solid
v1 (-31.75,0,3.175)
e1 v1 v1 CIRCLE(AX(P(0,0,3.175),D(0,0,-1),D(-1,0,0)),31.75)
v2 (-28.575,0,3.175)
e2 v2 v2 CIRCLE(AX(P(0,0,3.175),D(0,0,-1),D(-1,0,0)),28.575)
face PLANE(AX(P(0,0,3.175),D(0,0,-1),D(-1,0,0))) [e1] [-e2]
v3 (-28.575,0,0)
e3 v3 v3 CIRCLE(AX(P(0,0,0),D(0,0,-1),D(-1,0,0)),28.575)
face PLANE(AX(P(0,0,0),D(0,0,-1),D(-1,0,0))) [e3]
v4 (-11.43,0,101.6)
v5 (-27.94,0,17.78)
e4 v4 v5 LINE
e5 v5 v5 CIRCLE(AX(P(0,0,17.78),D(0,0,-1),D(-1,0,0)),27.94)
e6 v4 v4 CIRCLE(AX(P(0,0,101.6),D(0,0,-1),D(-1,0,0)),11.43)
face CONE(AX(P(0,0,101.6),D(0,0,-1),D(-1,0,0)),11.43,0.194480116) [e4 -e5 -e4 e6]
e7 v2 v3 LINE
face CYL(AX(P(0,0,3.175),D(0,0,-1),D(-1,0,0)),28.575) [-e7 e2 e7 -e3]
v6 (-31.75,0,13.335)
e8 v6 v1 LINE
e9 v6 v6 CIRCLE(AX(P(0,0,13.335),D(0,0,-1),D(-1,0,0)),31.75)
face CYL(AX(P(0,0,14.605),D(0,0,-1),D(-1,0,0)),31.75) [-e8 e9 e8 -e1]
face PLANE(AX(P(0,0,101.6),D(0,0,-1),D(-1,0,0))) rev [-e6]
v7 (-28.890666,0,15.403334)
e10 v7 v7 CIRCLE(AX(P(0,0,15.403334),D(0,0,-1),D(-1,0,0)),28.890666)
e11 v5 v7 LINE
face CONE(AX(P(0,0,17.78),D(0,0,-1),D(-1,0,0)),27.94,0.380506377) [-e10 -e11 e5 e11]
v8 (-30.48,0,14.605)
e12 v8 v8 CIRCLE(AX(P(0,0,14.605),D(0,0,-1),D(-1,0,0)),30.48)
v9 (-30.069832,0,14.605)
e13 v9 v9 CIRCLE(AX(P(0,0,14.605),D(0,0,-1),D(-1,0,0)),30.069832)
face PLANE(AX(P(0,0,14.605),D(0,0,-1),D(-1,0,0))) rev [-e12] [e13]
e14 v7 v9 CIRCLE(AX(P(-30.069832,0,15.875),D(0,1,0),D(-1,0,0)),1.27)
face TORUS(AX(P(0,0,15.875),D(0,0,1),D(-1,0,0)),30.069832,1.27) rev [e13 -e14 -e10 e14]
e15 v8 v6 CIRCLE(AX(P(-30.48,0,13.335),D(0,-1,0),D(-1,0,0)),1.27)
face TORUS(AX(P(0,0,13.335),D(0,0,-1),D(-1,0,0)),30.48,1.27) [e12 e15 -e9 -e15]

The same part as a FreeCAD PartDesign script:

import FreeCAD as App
import Part
import Sketcher
Q = App.Units.Quantity


def edges_at(feature, points):
    """Names of the edges that pass closest to the given points."""
    edges = feature.Shape.Edges
    near = lambda p: min(range(len(edges)), key=lambda i: edges[i].distToShape(Part.Vertex(*p))[0])
    return sorted({f"Edge{near(p) + 1}" for p in points})

doc = App.newDocument("Part")
body = doc.addObject("PartDesign::Body", "Body")

sketch1 = body.newObject("Sketcher::SketchObject", "Sketch")
sketch1.AttachmentSupport = (doc.getObject("XZ_Plane"), [""])
sketch1.MapMode = "FlatFace"
sketch1.addGeometry(Part.LineSegment(App.Vector(-28.6, 0, 0), App.Vector(0, 0, 0)), False)
sketch1.addGeometry(Part.LineSegment(App.Vector(0, 0, 0), App.Vector(0, 101.6, 0)), False)
sketch1.addGeometry(Part.LineSegment(App.Vector(0, 101.6, 0), App.Vector(-11.4, 101.6, 0)), False)
sketch1.addGeometry(Part.LineSegment(App.Vector(-11.4, 101.6, 0), App.Vector(-27.9, 17.8, 0)), False)
sketch1.addGeometry(Part.LineSegment(App.Vector(-27.9, 17.8, 0), App.Vector(-29.2, 14.6, 0)), False)
sketch1.addGeometry(Part.LineSegment(App.Vector(-29.2, 14.6, 0), App.Vector(-31.8, 14.6, 0)), False)
sketch1.addGeometry(Part.LineSegment(App.Vector(-31.8, 14.6, 0), App.Vector(-31.8, 3.2, 0)), False)
sketch1.addGeometry(Part.LineSegment(App.Vector(-31.8, 3.2, 0), App.Vector(-28.6, 3.2, 0)), False)
sketch1.addGeometry(Part.LineSegment(App.Vector(-28.6, 3.2, 0), App.Vector(-28.6, 0, 0)), False)
sketch1.addConstraint(Sketcher.Constraint("Coincident", 0, 2, 1, 1))
sketch1.addConstraint(Sketcher.Constraint("Coincident", 1, 2, 2, 1))
sketch1.addConstraint(Sketcher.Constraint("Coincident", 2, 2, 3, 1))
sketch1.addConstraint(Sketcher.Constraint("Coincident", 3, 2, 4, 1))
sketch1.addConstraint(Sketcher.Constraint("Coincident", 4, 2, 5, 1))
sketch1.addConstraint(Sketcher.Constraint("Coincident", 5, 2, 6, 1))
sketch1.addConstraint(Sketcher.Constraint("Coincident", 6, 2, 7, 1))
sketch1.addConstraint(Sketcher.Constraint("Coincident", 7, 2, 8, 1))
sketch1.addConstraint(Sketcher.Constraint("Coincident", 8, 2, 0, 1))
sketch1.addConstraint(Sketcher.Constraint("Horizontal", 0))
sketch1.addConstraint(Sketcher.Constraint("Vertical", 1))
sketch1.addConstraint(Sketcher.Constraint("Horizontal", 2))
sketch1.addConstraint(Sketcher.Constraint("Horizontal", 5))
sketch1.addConstraint(Sketcher.Constraint("Vertical", 6))
sketch1.addConstraint(Sketcher.Constraint("Horizontal", 7))
sketch1.addConstraint(Sketcher.Constraint("Vertical", 8))
sketch1.addConstraint(Sketcher.Constraint("Coincident", 0, 2, -1, 1))
sketch1.addConstraint(Sketcher.Constraint("Equal", 2, 6))
sketch1.addConstraint(Sketcher.Constraint("Equal", 7, 8))
sketch1.addConstraint(Sketcher.Constraint("DistanceY", 1, 1, 1, 2, Q("4 in")))
sketch1.addConstraint(Sketcher.Constraint("DistanceX", 5, 2, 5, 1, Q("0.1 in")))
sketch1.addConstraint(Sketcher.Constraint("DistanceX", 2, 2, 2, 1, Q("0.45 in")))
sketch1.addConstraint(Sketcher.Constraint("DistanceX", 3, 2, -1, 1, Q("1.1 in")))
sketch1.addConstraint(Sketcher.Constraint("DistanceY", -1, 1, 3, 2, Q("0.7 in")))
sketch1.addConstraint(Sketcher.Constraint("DistanceX", 4, 2, 2, 2, Q("0.7 in")))
sketch1.addConstraint(Sketcher.Constraint("DistanceX", 0, 1, 0, 2, Q("1.125 in")))
revolution = body.newObject("PartDesign::Revolution", "Revolution")
revolution.Profile = sketch1
revolution.ReferenceAxis = (sketch1, ["V_Axis"])
revolution.Angle = 360
doc.recompute()

fillet = body.newObject("PartDesign::Fillet", "Fillet")
fillet.Base = (revolution, edges_at(revolution, [(29.21, 0, 14.605)]))
fillet.Radius = Q("0.05 in")
doc.recompute()

fillet2 = body.newObject("PartDesign::Fillet", "Fillet001")
fillet2.Base = (fillet, edges_at(fillet, [(31.75, 0, 14.605)]))
fillet2.Radius = Q("0.05 in")

doc.recompute()
